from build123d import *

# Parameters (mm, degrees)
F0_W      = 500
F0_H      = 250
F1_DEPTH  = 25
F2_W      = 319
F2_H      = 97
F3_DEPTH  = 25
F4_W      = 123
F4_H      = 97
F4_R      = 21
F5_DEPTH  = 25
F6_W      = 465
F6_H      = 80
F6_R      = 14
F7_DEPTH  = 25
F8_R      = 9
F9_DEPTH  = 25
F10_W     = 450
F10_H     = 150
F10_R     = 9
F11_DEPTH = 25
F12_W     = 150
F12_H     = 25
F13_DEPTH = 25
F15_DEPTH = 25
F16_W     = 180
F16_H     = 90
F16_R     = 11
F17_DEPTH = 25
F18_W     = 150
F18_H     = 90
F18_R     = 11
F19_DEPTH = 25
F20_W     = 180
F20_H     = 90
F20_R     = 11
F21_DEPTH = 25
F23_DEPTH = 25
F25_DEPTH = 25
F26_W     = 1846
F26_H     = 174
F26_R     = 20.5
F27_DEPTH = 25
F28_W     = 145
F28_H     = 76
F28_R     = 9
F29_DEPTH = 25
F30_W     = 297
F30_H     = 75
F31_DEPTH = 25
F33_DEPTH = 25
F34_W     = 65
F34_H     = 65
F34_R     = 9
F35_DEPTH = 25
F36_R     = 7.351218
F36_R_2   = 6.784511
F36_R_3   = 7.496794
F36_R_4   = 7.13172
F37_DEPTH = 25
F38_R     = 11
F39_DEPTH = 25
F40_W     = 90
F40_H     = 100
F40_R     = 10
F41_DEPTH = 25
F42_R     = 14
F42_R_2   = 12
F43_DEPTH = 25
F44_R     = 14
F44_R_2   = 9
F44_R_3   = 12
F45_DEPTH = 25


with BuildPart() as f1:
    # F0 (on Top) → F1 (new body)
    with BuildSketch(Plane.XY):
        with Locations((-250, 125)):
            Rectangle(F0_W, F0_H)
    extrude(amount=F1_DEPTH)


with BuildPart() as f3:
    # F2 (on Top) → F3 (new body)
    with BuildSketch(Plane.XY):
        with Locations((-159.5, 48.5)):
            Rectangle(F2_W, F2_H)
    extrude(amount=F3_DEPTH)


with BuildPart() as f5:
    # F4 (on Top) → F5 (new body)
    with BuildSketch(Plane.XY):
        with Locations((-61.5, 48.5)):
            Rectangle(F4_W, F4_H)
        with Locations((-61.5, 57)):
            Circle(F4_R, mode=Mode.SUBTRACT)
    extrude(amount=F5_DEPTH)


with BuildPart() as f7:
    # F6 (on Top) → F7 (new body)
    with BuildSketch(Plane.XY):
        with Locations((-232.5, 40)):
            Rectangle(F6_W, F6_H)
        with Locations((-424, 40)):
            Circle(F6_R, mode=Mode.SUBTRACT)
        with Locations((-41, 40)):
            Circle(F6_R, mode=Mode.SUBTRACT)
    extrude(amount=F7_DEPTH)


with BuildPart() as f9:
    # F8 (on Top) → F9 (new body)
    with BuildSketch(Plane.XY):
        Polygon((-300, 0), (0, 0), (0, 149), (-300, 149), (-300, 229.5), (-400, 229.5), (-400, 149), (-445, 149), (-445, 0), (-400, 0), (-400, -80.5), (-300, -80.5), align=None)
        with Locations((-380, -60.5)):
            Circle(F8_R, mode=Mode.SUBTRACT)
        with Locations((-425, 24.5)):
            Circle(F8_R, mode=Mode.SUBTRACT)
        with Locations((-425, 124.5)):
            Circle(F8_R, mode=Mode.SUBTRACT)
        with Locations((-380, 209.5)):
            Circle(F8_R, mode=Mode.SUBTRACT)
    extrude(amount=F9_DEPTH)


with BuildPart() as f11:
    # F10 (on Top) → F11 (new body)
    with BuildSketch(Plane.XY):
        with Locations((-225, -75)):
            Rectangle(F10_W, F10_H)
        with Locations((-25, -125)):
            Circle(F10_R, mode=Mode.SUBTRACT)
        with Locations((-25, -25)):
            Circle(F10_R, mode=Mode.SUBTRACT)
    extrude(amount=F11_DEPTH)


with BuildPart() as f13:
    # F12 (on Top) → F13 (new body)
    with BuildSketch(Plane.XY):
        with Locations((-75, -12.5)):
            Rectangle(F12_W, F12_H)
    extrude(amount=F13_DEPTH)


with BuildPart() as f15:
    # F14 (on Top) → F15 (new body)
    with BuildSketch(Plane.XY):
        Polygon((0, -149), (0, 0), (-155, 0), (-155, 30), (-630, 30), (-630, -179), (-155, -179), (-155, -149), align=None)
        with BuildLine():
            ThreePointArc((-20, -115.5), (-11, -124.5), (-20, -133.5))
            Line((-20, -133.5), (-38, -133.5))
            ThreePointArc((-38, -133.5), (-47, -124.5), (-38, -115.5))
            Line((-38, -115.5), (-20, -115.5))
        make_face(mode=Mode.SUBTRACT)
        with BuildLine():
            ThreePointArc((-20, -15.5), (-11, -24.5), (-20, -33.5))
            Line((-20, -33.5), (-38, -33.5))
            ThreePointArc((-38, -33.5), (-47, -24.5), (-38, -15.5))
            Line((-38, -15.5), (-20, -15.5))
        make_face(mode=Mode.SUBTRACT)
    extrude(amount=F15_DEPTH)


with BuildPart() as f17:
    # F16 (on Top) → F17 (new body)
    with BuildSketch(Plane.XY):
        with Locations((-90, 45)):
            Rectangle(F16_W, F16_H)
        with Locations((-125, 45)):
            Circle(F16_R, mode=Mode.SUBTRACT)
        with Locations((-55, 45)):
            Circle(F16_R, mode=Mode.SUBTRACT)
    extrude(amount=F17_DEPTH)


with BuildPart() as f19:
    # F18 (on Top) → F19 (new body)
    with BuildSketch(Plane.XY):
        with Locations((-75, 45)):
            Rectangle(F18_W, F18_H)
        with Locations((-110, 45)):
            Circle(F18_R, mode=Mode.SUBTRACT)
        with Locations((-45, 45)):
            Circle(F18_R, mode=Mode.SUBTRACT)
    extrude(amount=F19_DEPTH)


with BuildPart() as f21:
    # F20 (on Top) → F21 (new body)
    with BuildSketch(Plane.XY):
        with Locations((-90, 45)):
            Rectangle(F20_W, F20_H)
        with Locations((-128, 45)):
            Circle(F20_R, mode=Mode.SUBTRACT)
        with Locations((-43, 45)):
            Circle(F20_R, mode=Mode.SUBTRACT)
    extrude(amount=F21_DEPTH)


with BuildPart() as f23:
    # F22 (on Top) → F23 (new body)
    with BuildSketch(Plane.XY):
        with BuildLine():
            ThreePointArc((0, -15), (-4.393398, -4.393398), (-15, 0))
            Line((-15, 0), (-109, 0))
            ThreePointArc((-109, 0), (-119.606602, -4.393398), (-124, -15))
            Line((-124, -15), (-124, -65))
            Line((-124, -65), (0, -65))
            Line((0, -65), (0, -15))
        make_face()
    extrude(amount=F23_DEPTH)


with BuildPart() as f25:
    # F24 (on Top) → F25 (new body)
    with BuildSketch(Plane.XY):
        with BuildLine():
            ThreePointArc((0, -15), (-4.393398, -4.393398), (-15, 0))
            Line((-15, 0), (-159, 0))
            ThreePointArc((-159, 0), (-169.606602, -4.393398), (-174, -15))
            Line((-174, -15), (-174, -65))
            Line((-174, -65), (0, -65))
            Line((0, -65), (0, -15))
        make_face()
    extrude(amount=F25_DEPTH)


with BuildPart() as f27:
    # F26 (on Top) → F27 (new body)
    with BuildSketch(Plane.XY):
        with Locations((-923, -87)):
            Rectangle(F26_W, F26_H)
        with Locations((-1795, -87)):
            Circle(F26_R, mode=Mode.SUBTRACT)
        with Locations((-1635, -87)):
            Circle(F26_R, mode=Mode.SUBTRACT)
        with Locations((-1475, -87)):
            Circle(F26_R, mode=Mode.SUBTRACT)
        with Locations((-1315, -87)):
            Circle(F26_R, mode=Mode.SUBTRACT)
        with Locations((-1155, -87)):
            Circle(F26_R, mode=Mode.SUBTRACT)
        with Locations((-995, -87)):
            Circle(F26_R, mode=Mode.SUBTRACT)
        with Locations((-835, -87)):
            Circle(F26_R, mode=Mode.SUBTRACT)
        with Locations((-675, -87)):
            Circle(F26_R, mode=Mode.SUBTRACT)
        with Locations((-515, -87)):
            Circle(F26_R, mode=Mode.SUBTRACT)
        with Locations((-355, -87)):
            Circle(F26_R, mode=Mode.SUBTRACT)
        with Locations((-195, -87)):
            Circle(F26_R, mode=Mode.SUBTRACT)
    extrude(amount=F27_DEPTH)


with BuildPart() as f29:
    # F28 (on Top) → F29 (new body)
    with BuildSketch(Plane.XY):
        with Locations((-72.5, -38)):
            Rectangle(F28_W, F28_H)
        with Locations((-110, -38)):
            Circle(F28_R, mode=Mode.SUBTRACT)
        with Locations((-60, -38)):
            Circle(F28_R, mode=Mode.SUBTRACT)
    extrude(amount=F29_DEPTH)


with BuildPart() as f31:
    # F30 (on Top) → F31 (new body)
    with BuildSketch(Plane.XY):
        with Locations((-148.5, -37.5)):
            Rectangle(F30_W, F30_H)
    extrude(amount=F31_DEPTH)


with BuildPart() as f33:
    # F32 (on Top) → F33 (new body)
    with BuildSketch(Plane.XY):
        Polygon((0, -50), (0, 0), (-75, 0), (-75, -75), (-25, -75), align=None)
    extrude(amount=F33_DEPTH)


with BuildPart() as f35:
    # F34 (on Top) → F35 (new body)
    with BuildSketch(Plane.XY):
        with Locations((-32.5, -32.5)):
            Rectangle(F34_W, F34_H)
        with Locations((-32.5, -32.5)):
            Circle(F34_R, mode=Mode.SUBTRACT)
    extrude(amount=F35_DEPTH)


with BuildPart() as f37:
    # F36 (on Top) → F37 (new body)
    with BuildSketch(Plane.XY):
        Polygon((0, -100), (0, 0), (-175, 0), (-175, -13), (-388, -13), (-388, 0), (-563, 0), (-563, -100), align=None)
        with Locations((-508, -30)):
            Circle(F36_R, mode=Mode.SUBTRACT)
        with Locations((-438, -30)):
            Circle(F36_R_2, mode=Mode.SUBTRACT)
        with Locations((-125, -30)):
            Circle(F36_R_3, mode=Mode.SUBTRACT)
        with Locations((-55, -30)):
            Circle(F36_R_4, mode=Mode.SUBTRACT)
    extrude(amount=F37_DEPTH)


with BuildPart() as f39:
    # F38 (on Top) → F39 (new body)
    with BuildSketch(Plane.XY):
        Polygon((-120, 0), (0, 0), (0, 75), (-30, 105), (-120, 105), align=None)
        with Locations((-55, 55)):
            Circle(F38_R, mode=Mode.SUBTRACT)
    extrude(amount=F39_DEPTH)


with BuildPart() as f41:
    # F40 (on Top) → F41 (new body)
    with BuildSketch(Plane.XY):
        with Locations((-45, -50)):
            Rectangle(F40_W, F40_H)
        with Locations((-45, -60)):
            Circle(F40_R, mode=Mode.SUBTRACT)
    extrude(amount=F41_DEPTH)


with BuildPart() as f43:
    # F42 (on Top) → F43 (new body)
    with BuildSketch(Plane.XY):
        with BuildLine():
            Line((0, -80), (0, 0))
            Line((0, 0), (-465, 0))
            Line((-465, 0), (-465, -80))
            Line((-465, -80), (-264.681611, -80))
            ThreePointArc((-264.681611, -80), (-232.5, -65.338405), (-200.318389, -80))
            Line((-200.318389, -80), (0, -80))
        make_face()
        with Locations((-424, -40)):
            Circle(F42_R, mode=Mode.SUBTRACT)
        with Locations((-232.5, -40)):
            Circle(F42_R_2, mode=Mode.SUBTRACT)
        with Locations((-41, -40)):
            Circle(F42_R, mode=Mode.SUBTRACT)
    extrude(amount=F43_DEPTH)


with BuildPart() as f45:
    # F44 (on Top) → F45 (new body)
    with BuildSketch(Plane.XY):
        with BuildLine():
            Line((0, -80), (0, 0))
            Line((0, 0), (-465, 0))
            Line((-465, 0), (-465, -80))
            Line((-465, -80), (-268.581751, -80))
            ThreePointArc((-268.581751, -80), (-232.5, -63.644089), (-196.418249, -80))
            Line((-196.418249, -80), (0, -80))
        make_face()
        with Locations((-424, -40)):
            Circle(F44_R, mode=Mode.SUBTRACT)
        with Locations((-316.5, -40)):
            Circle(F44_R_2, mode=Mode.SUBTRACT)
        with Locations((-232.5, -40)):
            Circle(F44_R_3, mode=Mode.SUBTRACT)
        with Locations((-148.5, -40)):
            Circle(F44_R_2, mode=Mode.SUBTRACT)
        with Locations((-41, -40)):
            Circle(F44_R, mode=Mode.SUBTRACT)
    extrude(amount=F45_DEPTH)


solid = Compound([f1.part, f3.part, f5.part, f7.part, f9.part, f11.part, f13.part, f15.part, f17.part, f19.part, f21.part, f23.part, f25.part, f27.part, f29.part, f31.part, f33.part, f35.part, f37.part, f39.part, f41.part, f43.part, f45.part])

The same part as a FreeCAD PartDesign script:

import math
import FreeCAD as App
import Part
import Sketcher


def add_polygon(sketch, points):
    """Adds a closed chain of lines whose ends are joined by coincident constraints."""
    first, n = sketch.GeometryCount, len(points)
    for a, b in zip(points, points[1:] + points[:1]):
        sketch.addGeometry(Part.LineSegment(App.Vector(*a, 0), App.Vector(*b, 0)), False)
    for i in range(n):
        sketch.addConstraint(Sketcher.Constraint("Coincident", first + i, 2, first + (i + 1) % n, 1))

doc = App.newDocument("Part")
body = doc.addObject("PartDesign::Body", "Body")

# Sketch on XY plane
sketch1 = body.newObject("Sketcher::SketchObject", "Sketch")
sketch1.AttachmentSupport = (doc.getObject("XY_Plane"), [""])
sketch1.MapMode = "FlatFace"
add_polygon(sketch1, [(-500, 250), (-500, 0), (0, 0), (0, 250)])  # lines 0-3
sketch1.addConstraint([
    Sketcher.Constraint("Vertical", 0),
    Sketcher.Constraint("Horizontal", 1),
    Sketcher.Constraint("Vertical", 2),
    Sketcher.Constraint("Horizontal", 3),
    Sketcher.Constraint("Coincident", 1, 2, -1, 1),
    Sketcher.Constraint("DistanceX", 1, 1, 1, 2, 500.0),
    Sketcher.Constraint("DistanceY", 0, 2, 0, 1, 250.0),
])
pad1 = body.newObject("PartDesign::Pad", "Pad")
pad1.Profile = sketch1
pad1.Length = 25
body2 = doc.addObject("PartDesign::Body", "Body001")

# Sketch on XY plane
sketch2 = body2.newObject("Sketcher::SketchObject", "Sketch001")
sketch2.AttachmentSupport = (doc.getObject("XY_Plane001"), [""])
sketch2.MapMode = "FlatFace"
add_polygon(sketch2, [(-319, 97), (-319, 0), (0, 0), (0, 97)])  # lines 0-3
sketch2.addConstraint([
    Sketcher.Constraint("Vertical", 0),
    Sketcher.Constraint("Horizontal", 1),
    Sketcher.Constraint("Vertical", 2),
    Sketcher.Constraint("Horizontal", 3),
    Sketcher.Constraint("Coincident", 1, 2, -1, 1),
    Sketcher.Constraint("DistanceX", 1, 1, 1, 2, 319.0),
    Sketcher.Constraint("DistanceY", 0, 2, 0, 1, 97.0),
])
pad2 = body2.newObject("PartDesign::Pad", "Pad001")
pad2.Profile = sketch2
pad2.Length = 25
body3 = doc.addObject("PartDesign::Body", "Body002")

# Sketch on XY plane
sketch3 = body3.newObject("Sketcher::SketchObject", "Sketch002")
sketch3.AttachmentSupport = (doc.getObject("XY_Plane002"), [""])
sketch3.MapMode = "FlatFace"
add_polygon(sketch3, [(-123, 97), (-123, 0), (0, 0), (0, 97)])  # lines 0-3
sketch3.addGeometry(Part.Circle(App.Vector(-62, 57, 0), App.Vector(0, 0, 1), 21), False)  # 4
sketch3.addConstraint([
    Sketcher.Constraint("Vertical", 0),
    Sketcher.Constraint("Horizontal", 1),
    Sketcher.Constraint("Vertical", 2),
    Sketcher.Constraint("Horizontal", 3),
    Sketcher.Constraint("Coincident", 1, 2, -1, 1),
    Sketcher.Constraint("Diameter", 4, 42.0),
    Sketcher.Constraint("DistanceX", 1, 1, 1, 2, 123.0),
    Sketcher.Constraint("DistanceY", 0, 2, 0, 1, 97.0),
    Sketcher.Constraint("DistanceY", -1, 1, 4, 3, 57.0),
    Sketcher.Constraint("DistanceX", 4, 3, -1, 1, 61.5),
])
pad3 = body3.newObject("PartDesign::Pad", "Pad002")
pad3.Profile = sketch3
pad3.Length = 25
body4 = doc.addObject("PartDesign::Body", "Body003")

# Sketch on XY plane
sketch4 = body4.newObject("Sketcher::SketchObject", "Sketch003")
sketch4.AttachmentSupport = (doc.getObject("XY_Plane003"), [""])
sketch4.MapMode = "FlatFace"
add_polygon(sketch4, [(-465, 80), (-465, 0), (0, 0), (0, 80)])  # lines 0-3
sketch4.addGeometry(Part.Circle(App.Vector(-424, 40, 0), App.Vector(0, 0, 1), 14), False)  # 4
sketch4.addGeometry(Part.Circle(App.Vector(-41, 40, 0), App.Vector(0, 0, 1), 14), False)  # 5
sketch4.addConstraint([
    Sketcher.Constraint("Vertical", 0),
    Sketcher.Constraint("Horizontal", 1),
    Sketcher.Constraint("Vertical", 2),
    Sketcher.Constraint("Horizontal", 3),
    Sketcher.Constraint("Coincident", 1, 2, -1, 1),
    Sketcher.Constraint("Equal", 4, 5),
    Sketcher.Constraint("Horizontal", 4, 3, 5, 3),
    Sketcher.Constraint("Diameter", 4, 28.0),
    Sketcher.Constraint("DistanceX", 1, 1, 1, 2, 465.0),
    Sketcher.Constraint("DistanceY", 0, 2, 0, 1, 80.0),
    Sketcher.Constraint("DistanceX", 4, 3, -1, 1, 424.0),
    Sketcher.Constraint("DistanceY", -1, 1, 4, 3, 40.0),
    Sketcher.Constraint("DistanceX", 5, 3, -1, 1, 41.0),
])
pad4 = body4.newObject("PartDesign::Pad", "Pad003")
pad4.Profile = sketch4
pad4.Length = 25
body5 = doc.addObject("PartDesign::Body", "Body004")

# Sketch on XY plane
sketch5 = body5.newObject("Sketcher::SketchObject", "Sketch004")
sketch5.AttachmentSupport = (doc.getObject("XY_Plane004"), [""])
sketch5.MapMode = "FlatFace"
add_polygon(sketch5, [(-300, 0), (0, 0), (0, 149), (-300, 149), (-300, 230), (-400, 230), (-400, 149), (-445, 149), (-445, 0), (-400, 0), (-400, -80), (-300, -80)])  # lines 0-11
sketch5.addGeometry(Part.Circle(App.Vector(-425, 24, 0), App.Vector(0, 0, 1), 9), False)  # 12
sketch5.addGeometry(Part.Circle(App.Vector(-380, -60, 0), App.Vector(0, 0, 1), 9), False)  # 13
sketch5.addGeometry(Part.Circle(App.Vector(-425, 124, 0), App.Vector(0, 0, 1), 9), False)  # 14
sketch5.addGeometry(Part.Circle(App.Vector(-380, 210, 0), App.Vector(0, 0, 1), 9), False)  # 15
sketch5.addConstraint([
    Sketcher.Constraint("Horizontal", 0),
    Sketcher.Constraint("Vertical", 1),
    Sketcher.Constraint("Horizontal", 2),
    Sketcher.Constraint("Vertical", 3),
    Sketcher.Constraint("Horizontal", 4),
    Sketcher.Constraint("Vertical", 5),
    Sketcher.Constraint("Horizontal", 6),
    Sketcher.Constraint("Vertical", 7),
    Sketcher.Constraint("Horizontal", 8),
    Sketcher.Constraint("Vertical", 9),
    Sketcher.Constraint("Horizontal", 10),
    Sketcher.Constraint("Vertical", 11),
    Sketcher.Constraint("Coincident", 0, 2, -1, 1),
    Sketcher.Constraint("Equal", 12, 13),
    Sketcher.Constraint("Equal", 13, 14),
    Sketcher.Constraint("Equal", 14, 15),
    Sketcher.Constraint("PointOnObject", 7, 2, -1),
    Sketcher.Constraint("Horizontal", 2, 2, 5, 2),
    Sketcher.Constraint("Vertical", 12, 3, 14, 3),
    Sketcher.Constraint("Vertical", 13, 3, 15, 3),
    Sketcher.Constraint("Vertical", 5, 2, 8, 2),
    Sketcher.Constraint("Vertical", 3, 2, 10, 2),
    Sketcher.Constraint("Equal", 5, 9),
    Sketcher.Constraint("Diameter", 12, 18.0),
    Sketcher.Constraint("DistanceX", 0, 1, 0, 2, 300.0),
    Sketcher.Constraint("DistanceX", 4, 2, 4, 1, 100.0),
    Sketcher.Constraint("DistanceX", 6, 2, 6, 1, 45.0),
    Sketcher.Constraint("DistanceY", 1, 1, 1, 2, 149.0),
    Sketcher.Constraint("DistanceY", 3, 1, 3, 2, 80.5),
    Sketcher.Constraint("DistanceX", 12, 3, -1, 1, 425.0),
    Sketcher.Constraint("DistanceX", 13, 3, -1, 1, 380.0),
    Sketcher.Constraint("DistanceY", 13, 3, 12, 3, 85.0),
    Sketcher.Constraint("DistanceY", 12, 3, 14, 3, 100.0),
    Sketcher.Constraint("DistanceY", 14, 3, 15, 3, 85.0),
    Sketcher.Constraint("DistanceY", 15, 3, 3, 2, 20.0),
])
pad5 = body5.newObject("PartDesign::Pad", "Pad004")
pad5.Profile = sketch5
pad5.Length = 25
body6 = doc.addObject("PartDesign::Body", "Body005")

# Sketch on XY plane
sketch6 = body6.newObject("Sketcher::SketchObject", "Sketch005")
sketch6.AttachmentSupport = (doc.getObject("XY_Plane005"), [""])
sketch6.MapMode = "FlatFace"
add_polygon(sketch6, [(-450, 0), (-450, -150), (0, -150), (0, 0)])  # lines 0-3
sketch6.addGeometry(Part.Circle(App.Vector(-25, -125, 0), App.Vector(0, 0, 1), 9), False)  # 4
sketch6.addGeometry(Part.Circle(App.Vector(-25, -25, 0), App.Vector(0, 0, 1), 9), False)  # 5
sketch6.addConstraint([
    Sketcher.Constraint("Vertical", 0),
    Sketcher.Constraint("Horizontal", 1),
    Sketcher.Constraint("Vertical", 2),
    Sketcher.Constraint("Horizontal", 3),
    Sketcher.Constraint("Coincident", 2, 2, -1, 1),
    Sketcher.Constraint("Equal", 4, 5),
    Sketcher.Constraint("Vertical", 4, 3, 5, 3),
    Sketcher.Constraint("Diameter", 4, 18.0),
    Sketcher.Constraint("DistanceX", 1, 1, 1, 2, 450.0),
    Sketcher.Constraint("DistanceY", 0, 2, 0, 1, 150.0),
    Sketcher.Constraint("DistanceX", 4, 3, -1, 1, 25.0),
    Sketcher.Constraint("DistanceY", 4, 3, -1, 1, 125.0),
    Sketcher.Constraint("DistanceY", 5, 3, -1, 1, 25.0),
])
pad6 = body6.newObject("PartDesign::Pad", "Pad005")
pad6.Profile = sketch6
pad6.Length = 25
body7 = doc.addObject("PartDesign::Body", "Body006")

# Sketch on XY plane
sketch7 = body7.newObject("Sketcher::SketchObject", "Sketch006")
sketch7.AttachmentSupport = (doc.getObject("XY_Plane006"), [""])
sketch7.MapMode = "FlatFace"
add_polygon(sketch7, [(-150, 0), (-150, -25), (0, -25), (0, 0)])  # lines 0-3
sketch7.addConstraint([
    Sketcher.Constraint("Vertical", 0),
    Sketcher.Constraint("Horizontal", 1),
    Sketcher.Constraint("Vertical", 2),
    Sketcher.Constraint("Horizontal", 3),
    Sketcher.Constraint("Coincident", 2, 2, -1, 1),
    Sketcher.Constraint("DistanceX", 1, 1, 1, 2, 150.0),
    Sketcher.Constraint("DistanceY", 0, 2, 0, 1, 25.0),
])
pad7 = body7.newObject("PartDesign::Pad", "Pad006")
pad7.Profile = sketch7
pad7.Length = 25
body8 = doc.addObject("PartDesign::Body", "Body007")

# Sketch on XY plane
sketch8 = body8.newObject("Sketcher::SketchObject", "Sketch007")
sketch8.AttachmentSupport = (doc.getObject("XY_Plane007"), [""])
sketch8.MapMode = "FlatFace"
add_polygon(sketch8, [(0, -149), (0, 0), (-155, 0), (-155, 30), (-630, 30), (-630, -179), (-155, -179), (-155, -149)])  # lines 0-7
sketch8.addGeometry(Part.LineSegment(App.Vector(-38, -116, 0), App.Vector(-20, -116, 0)), False)  # 8
sketch8.addGeometry(Part.ArcOfCircle(Part.Circle(App.Vector(-20, -124, 0), App.Vector(0, 0, 1), 9), math.radians(-90), math.radians(90)), False)  # 9
sketch8.addGeometry(Part.LineSegment(App.Vector(-20, -134, 0), App.Vector(-38, -134, 0)), False)  # 10
sketch8.addGeometry(Part.ArcOfCircle(Part.Circle(App.Vector(-38, -124, 0), App.Vector(0, 0, 1), 9), math.radians(90), math.radians(270)), False)  # 11
sketch8.addGeometry(Part.LineSegment(App.Vector(-38, -16, 0), App.Vector(-20, -16, 0)), False)  # 12
sketch8.addGeometry(Part.ArcOfCircle(Part.Circle(App.Vector(-20, -24, 0), App.Vector(0, 0, 1), 9), math.radians(-90), math.radians(90)), False)  # 13
sketch8.addGeometry(Part.LineSegment(App.Vector(-20, -34, 0), App.Vector(-38, -34, 0)), False)  # 14
sketch8.addGeometry(Part.ArcOfCircle(Part.Circle(App.Vector(-38, -24, 0), App.Vector(0, 0, 1), 9), math.radians(90), math.radians(270)), False)  # 15
sketch8.addConstraint([
    Sketcher.Constraint("Tangent", 8, 2, 9, 2),
    Sketcher.Constraint("Tangent", 9, 1, 10, 1),
    Sketcher.Constraint("Tangent", 10, 2, 11, 2),
    Sketcher.Constraint("Tangent", 11, 1, 8, 1),
    Sketcher.Constraint("Tangent", 12, 2, 13, 2),
    Sketcher.Constraint("Tangent", 13, 1, 14, 1),
    Sketcher.Constraint("Tangent", 14, 2, 15, 2),
    Sketcher.Constraint("Tangent", 15, 1, 12, 1),
    Sketcher.Constraint("Vertical", 0),
    Sketcher.Constraint("Horizontal", 1),
    Sketcher.Constraint("Vertical", 2),
    Sketcher.Constraint("Horizontal", 3),
    Sketcher.Constraint("Vertical", 4),
    Sketcher.Constraint("Horizontal", 5),
    Sketcher.Constraint("Vertical", 6),
    Sketcher.Constraint("Horizontal", 7),
    Sketcher.Constraint("Horizontal", 8),
    Sketcher.Constraint("Horizontal", 10),
    Sketcher.Constraint("Horizontal", 12),
    Sketcher.Constraint("Horizontal", 14),
    Sketcher.Constraint("Coincident", 0, 2, -1, 1),
    Sketcher.Constraint("Equal", 11, 13),
    Sketcher.Constraint("Vertical", 9, 3, 13, 3),
    Sketcher.Constraint("Vertical", 11, 3, 15, 3),
    Sketcher.Constraint("Vertical", 2, 2, 5, 2),
    Sketcher.Constraint("Equal", 2, 6),
    Sketcher.Constraint("Radius", 9, 9.0),
    Sketcher.Constraint("DistanceX", 1, 2, 1, 1, 155.0),
    Sketcher.Constraint("DistanceX", 3, 2, 3, 1, 475.0),
    Sketcher.Constraint("DistanceX", 8, 1, 8, 2, 18.0),
    Sketcher.Constraint("DistanceY", 0, 1, 0, 2, 149.0),
    Sketcher.Constraint("DistanceY", 2, 1, 2, 2, 30.0),
    Sketcher.Constraint("DistanceX", 9, 3, -1, 1, 20.0),
    Sketcher.Constraint("DistanceY", 9, 3, 13, 3, 100.0),
    Sketcher.Constraint("DistanceY", 9, 3, -1, 1, 124.5),
])
pad8 = body8.newObject("PartDesign::Pad", "Pad007")
pad8.Profile = sketch8
pad8.Length = 25
body9 = doc.addObject("PartDesign::Body", "Body008")

# Sketch on XY plane
sketch9 = body9.newObject("Sketcher::SketchObject", "Sketch008")
sketch9.AttachmentSupport = (doc.getObject("XY_Plane008"), [""])
sketch9.MapMode = "FlatFace"
add_polygon(sketch9, [(-180, 90), (-180, 0), (0, 0), (0, 90)])  # lines 0-3
sketch9.addGeometry(Part.Circle(App.Vector(-125, 45, 0), App.Vector(0, 0, 1), 11), False)  # 4
sketch9.addGeometry(Part.Circle(App.Vector(-55, 45, 0), App.Vector(0, 0, 1), 11), False)  # 5
sketch9.addConstraint([
    Sketcher.Constraint("Vertical", 0),
    Sketcher.Constraint("Horizontal", 1),
    Sketcher.Constraint("Vertical", 2),
    Sketcher.Constraint("Horizontal", 3),
    Sketcher.Constraint("Coincident", 1, 2, -1, 1),
    Sketcher.Constraint("Equal", 4, 5),
    Sketcher.Constraint("Horizontal", 4, 3, 5, 3),
    Sketcher.Constraint("Diameter", 4, 22.0),
    Sketcher.Constraint("DistanceX", 1, 1, 1, 2, 180.0),
    Sketcher.Constraint("DistanceY", 0, 2, 0, 1, 90.0),
    Sketcher.Constraint("DistanceX", 4, 3, -1, 1, 125.0),
    Sketcher.Constraint("DistanceY", -1, 1, 4, 3, 45.0),
    Sketcher.Constraint("DistanceX", 5, 3, -1, 1, 55.0),
])
pad9 = body9.newObject("PartDesign::Pad", "Pad008")
pad9.Profile = sketch9
pad9.Length = 25
body10 = doc.addObject("PartDesign::Body", "Body009")

# Sketch on XY plane
sketch10 = body10.newObject("Sketcher::SketchObject", "Sketch009")
sketch10.AttachmentSupport = (doc.getObject("XY_Plane009"), [""])
sketch10.MapMode = "FlatFace"
add_polygon(sketch10, [(-150, 90), (-150, 0), (0, 0), (0, 90)])  # lines 0-3
sketch10.addGeometry(Part.Circle(App.Vector(-110, 45, 0), App.Vector(0, 0, 1), 11), False)  # 4
sketch10.addGeometry(Part.Circle(App.Vector(-45, 45, 0), App.Vector(0, 0, 1), 11), False)  # 5
sketch10.addConstraint([
    Sketcher.Constraint("Vertical", 0),
    Sketcher.Constraint("Horizontal", 1),
    Sketcher.Constraint("Vertical", 2),
    Sketcher.Constraint("Horizontal", 3),
    Sketcher.Constraint("Coincident", 1, 2, -1, 1),
    Sketcher.Constraint("Equal", 4, 5),
    Sketcher.Constraint("Horizontal", 4, 3, 5, 3),
    Sketcher.Constraint("Diameter", 4, 22.0),
    Sketcher.Constraint("DistanceX", 1, 1, 1, 2, 150.0),
    Sketcher.Constraint("DistanceY", 0, 2, 0, 1, 90.0),
    Sketcher.Constraint("DistanceX", 4, 3, -1, 1, 110.0),
    Sketcher.Constraint("DistanceY", -1, 1, 4, 3, 45.0),
    Sketcher.Constraint("DistanceX", 5, 3, -1, 1, 45.0),
])
pad10 = body10.newObject("PartDesign::Pad", "Pad009")
pad10.Profile = sketch10
pad10.Length = 25
body11 = doc.addObject("PartDesign::Body", "Body010")

# Sketch on XY plane
sketch11 = body11.newObject("Sketcher::SketchObject", "Sketch010")
sketch11.AttachmentSupport = (doc.getObject("XY_Plane010"), [""])
sketch11.MapMode = "FlatFace"
add_polygon(sketch11, [(-180, 90), (-180, 0), (0, 0), (0, 90)])  # lines 0-3
sketch11.addGeometry(Part.Circle(App.Vector(-128, 45, 0), App.Vector(0, 0, 1), 11), False)  # 4
sketch11.addGeometry(Part.Circle(App.Vector(-43, 45, 0), App.Vector(0, 0, 1), 11), False)  # 5
sketch11.addConstraint([
    Sketcher.Constraint("Vertical", 0),
    Sketcher.Constraint("Horizontal", 1),
    Sketcher.Constraint("Vertical", 2),
    Sketcher.Constraint("Horizontal", 3),
    Sketcher.Constraint("Coincident", 1, 2, -1, 1),
    Sketcher.Constraint("Equal", 4, 5),
    Sketcher.Constraint("Horizontal", 4, 3, 5, 3),
    Sketcher.Constraint("Diameter", 4, 22.0),
    Sketcher.Constraint("DistanceX", 1, 1, 1, 2, 180.0),
    Sketcher.Constraint("DistanceY", 0, 2, 0, 1, 90.0),
    Sketcher.Constraint("DistanceX", 4, 3, -1, 1, 128.0),
    Sketcher.Constraint("DistanceY", -1, 1, 4, 3, 45.0),
    Sketcher.Constraint("DistanceX", 5, 3, -1, 1, 43.0),
])
pad11 = body11.newObject("PartDesign::Pad", "Pad010")
pad11.Profile = sketch11
pad11.Length = 25
body12 = doc.addObject("PartDesign::Body", "Body011")

# Sketch on XY plane
sketch12 = body12.newObject("Sketcher::SketchObject", "Sketch011")
sketch12.AttachmentSupport = (doc.getObject("XY_Plane011"), [""])
sketch12.MapMode = "FlatFace"
sketch12.addGeometry([
    Part.ArcOfCircle(Part.Circle(App.Vector(-15, -15, 0), App.Vector(0, 0, 1), 15), math.radians(0), math.radians(90)),  # 0
    Part.LineSegment(App.Vector(-15, 0, 0), App.Vector(-109, 0, 0)),  # 1
    Part.ArcOfCircle(Part.Circle(App.Vector(-109, -15, 0), App.Vector(0, 0, 1), 15), math.radians(90), math.radians(180)),  # 2
    Part.LineSegment(App.Vector(-124, -15, 0), App.Vector(-124, -65, 0)),  # 3
    Part.LineSegment(App.Vector(-124, -65, 0), App.Vector(0, -65, 0)),  # 4
    Part.LineSegment(App.Vector(0, -65, 0), App.Vector(0, -15, 0)),  # 5
], False)
sketch12.addConstraint([
    Sketcher.Constraint("Tangent", 0, 2, 1, 1),
    Sketcher.Constraint("Tangent", 1, 2, 2, 1),
    Sketcher.Constraint("Tangent", 2, 2, 3, 1),
    Sketcher.Constraint("Coincident", 3, 2, 4, 1),
    Sketcher.Constraint("Coincident", 4, 2, 5, 1),
    Sketcher.Constraint("Tangent", 5, 2, 0, 1),
    Sketcher.Constraint("Horizontal", 1),
    Sketcher.Constraint("Vertical", 3),
    Sketcher.Constraint("Horizontal", 4),
    Sketcher.Constraint("Vertical", 5),
    Sketcher.Constraint("Equal", 0, 2),
    Sketcher.Constraint("PointOnObject", 0, 2, -1),
    Sketcher.Constraint("PointOnObject", 4, 2, -2),
    Sketcher.Constraint("Radius", 0, 14.999999),
    Sketcher.Constraint("DistanceX", 1, 2, 1, 1, 94.0),
    Sketcher.Constraint("DistanceY", 3, 2, 3, 1, 50.0),
])
pad12 = body12.newObject("PartDesign::Pad", "Pad011")
pad12.Profile = sketch12
pad12.Length = 25
body13 = doc.addObject("PartDesign::Body", "Body012")

# Sketch on XY plane
sketch13 = body13.newObject("Sketcher::SketchObject", "Sketch012")
sketch13.AttachmentSupport = (doc.getObject("XY_Plane012"), [""])
sketch13.MapMode = "FlatFace"
sketch13.addGeometry([
    Part.ArcOfCircle(Part.Circle(App.Vector(-15, -15, 0), App.Vector(0, 0, 1), 15), math.radians(0), math.radians(90)),  # 0
    Part.LineSegment(App.Vector(-15, 0, 0), App.Vector(-159, 0, 0)),  # 1
    Part.ArcOfCircle(Part.Circle(App.Vector(-159, -15, 0), App.Vector(0, 0, 1), 15), math.radians(90), math.radians(180)),  # 2
    Part.LineSegment(App.Vector(-174, -15, 0), App.Vector(-174, -65, 0)),  # 3
    Part.LineSegment(App.Vector(-174, -65, 0), App.Vector(0, -65, 0)),  # 4
    Part.LineSegment(App.Vector(0, -65, 0), App.Vector(0, -15, 0)),  # 5
], False)
sketch13.addConstraint([
    Sketcher.Constraint("Tangent", 0, 2, 1, 1),
    Sketcher.Constraint("Tangent", 1, 2, 2, 1),
    Sketcher.Constraint("Tangent", 2, 2, 3, 1),
    Sketcher.Constraint("Coincident", 3, 2, 4, 1),
    Sketcher.Constraint("Coincident", 4, 2, 5, 1),
    Sketcher.Constraint("Tangent", 5, 2, 0, 1),
    Sketcher.Constraint("Horizontal", 1),
    Sketcher.Constraint("Vertical", 3),
    Sketcher.Constraint("Horizontal", 4),
    Sketcher.Constraint("Vertical", 5),
    Sketcher.Constraint("Equal", 0, 2),
    Sketcher.Constraint("PointOnObject", 0, 2, -1),
    Sketcher.Constraint("PointOnObject", 4, 2, -2),
    Sketcher.Constraint("Radius", 0, 14.999999),
    Sketcher.Constraint("DistanceX", 1, 2, 1, 1, 144.0),
    Sketcher.Constraint("DistanceY", 3, 2, 3, 1, 50.0),
])
pad13 = body13.newObject("PartDesign::Pad", "Pad012")
pad13.Profile = sketch13
pad13.Length = 25
body14 = doc.addObject("PartDesign::Body", "Body013")

# Sketch on XY plane
sketch14 = body14.newObject("Sketcher::SketchObject", "Sketch013")
sketch14.AttachmentSupport = (doc.getObject("XY_Plane013"), [""])
sketch14.MapMode = "FlatFace"
add_polygon(sketch14, [(-1846, 0), (-1846, -174), (0, -174), (0, 0)])  # lines 0-3
sketch14.addGeometry(Part.Circle(App.Vector(-1795, -87, 0), App.Vector(0, 0, 1), 20), False)  # 4
sketch14.addGeometry(Part.Circle(App.Vector(-1635, -87, 0), App.Vector(0, 0, 1), 20), False)  # 5
sketch14.addGeometry(Part.Circle(App.Vector(-1475, -87, 0), App.Vector(0, 0, 1), 20), False)  # 6
sketch14.addGeometry(Part.Circle(App.Vector(-1315, -87, 0), App.Vector(0, 0, 1), 20), False)  # 7
sketch14.addGeometry(Part.Circle(App.Vector(-1155, -87, 0), App.Vector(0, 0, 1), 20), False)  # 8
sketch14.addGeometry(Part.Circle(App.Vector(-995, -87, 0), App.Vector(0, 0, 1), 20), False)  # 9
sketch14.addGeometry(Part.Circle(App.Vector(-835, -87, 0), App.Vector(0, 0, 1), 20), False)  # 10
sketch14.addGeometry(Part.Circle(App.Vector(-675, -87, 0), App.Vector(0, 0, 1), 20), False)  # 11
sketch14.addGeometry(Part.Circle(App.Vector(-515, -87, 0), App.Vector(0, 0, 1), 20), False)  # 12
sketch14.addGeometry(Part.Circle(App.Vector(-355, -87, 0), App.Vector(0, 0, 1), 20), False)  # 13
sketch14.addGeometry(Part.Circle(App.Vector(-195, -87, 0), App.Vector(0, 0, 1), 20), False)  # 14
sketch14.addConstraint([
    Sketcher.Constraint("Vertical", 0),
    Sketcher.Constraint("Horizontal", 1),
    Sketcher.Constraint("Vertical", 2),
    Sketcher.Constraint("Horizontal", 3),
    Sketcher.Constraint("Coincident", 2, 2, -1, 1),
    Sketcher.Constraint("Equal", 4, 5),
    Sketcher.Constraint("Equal", 5, 6),
    Sketcher.Constraint("Equal", 6, 7),
    Sketcher.Constraint("Equal", 7, 8),
    Sketcher.Constraint("Equal", 8, 9),
    Sketcher.Constraint("Equal", 9, 10),
    Sketcher.Constraint("Equal", 10, 11),
    Sketcher.Constraint("Equal", 11, 12),
    Sketcher.Constraint("Equal", 12, 13),
    Sketcher.Constraint("Equal", 13, 14),
    Sketcher.Constraint("Horizontal", 4, 3, 5, 3),
    Sketcher.Constraint("Horizontal", 5, 3, 6, 3),
    Sketcher.Constraint("Horizontal", 6, 3, 7, 3),
    Sketcher.Constraint("Horizontal", 7, 3, 8, 3),
    Sketcher.Constraint("Horizontal", 8, 3, 9, 3),
    Sketcher.Constraint("Horizontal", 9, 3, 10, 3),
    Sketcher.Constraint("Horizontal", 10, 3, 11, 3),
    Sketcher.Constraint("Horizontal", 11, 3, 12, 3),
    Sketcher.Constraint("Horizontal", 12, 3, 13, 3),
    Sketcher.Constraint("Horizontal", 13, 3, 14, 3),
    Sketcher.Constraint("Diameter", 4, 41.0),
    Sketcher.Constraint("DistanceX", 1, 1, 1, 2, 1846.0),
    Sketcher.Constraint("DistanceY", 0, 2, 0, 1, 174.0),
    Sketcher.Constraint("DistanceX", 4, 3, -1, 1, 1795.0),
    Sketcher.Constraint("DistanceY", 4, 3, -1, 1, 87.0),
    Sketcher.Constraint("DistanceX", 5, 3, -1, 1, 1635.0),
    Sketcher.Constraint("DistanceX", 6, 3, -1, 1, 1475.0),
    Sketcher.Constraint("DistanceX", 7, 3, -1, 1, 1315.0),
    Sketcher.Constraint("DistanceX", 8, 3, -1, 1, 1155.0),
    Sketcher.Constraint("DistanceX", 9, 3, -1, 1, 995.0),
    Sketcher.Constraint("DistanceX", 10, 3, -1, 1, 835.0),
    Sketcher.Constraint("DistanceX", 11, 3, -1, 1, 675.0),
    Sketcher.Constraint("DistanceX", 12, 3, -1, 1, 515.0),
    Sketcher.Constraint("DistanceX", 13, 3, -1, 1, 355.0),
    Sketcher.Constraint("DistanceX", 14, 3, -1, 1, 195.0),
])
pad14 = body14.newObject("PartDesign::Pad", "Pad013")
pad14.Profile = sketch14
pad14.Length = 25
body15 = doc.addObject("PartDesign::Body", "Body014")

# Sketch on XY plane
sketch15 = body15.newObject("Sketcher::SketchObject", "Sketch014")
sketch15.AttachmentSupport = (doc.getObject("XY_Plane014"), [""])
sketch15.MapMode = "FlatFace"
add_polygon(sketch15, [(-145, 0), (-145, -76), (0, -76), (0, 0)])  # lines 0-3
sketch15.addGeometry(Part.Circle(App.Vector(-110, -38, 0), App.Vector(0, 0, 1), 9), False)  # 4
sketch15.addGeometry(Part.Circle(App.Vector(-60, -38, 0), App.Vector(0, 0, 1), 9), False)  # 5
sketch15.addConstraint([
    Sketcher.Constraint("Vertical", 0),
    Sketcher.Constraint("Horizontal", 1),
    Sketcher.Constraint("Vertical", 2),
    Sketcher.Constraint("Horizontal", 3),
    Sketcher.Constraint("Coincident", 2, 2, -1, 1),
    Sketcher.Constraint("Equal", 4, 5),
    Sketcher.Constraint("Horizontal", 4, 3, 5, 3),
    Sketcher.Constraint("Diameter", 4, 18.0),
    Sketcher.Constraint("DistanceX", 1, 1, 1, 2, 145.0),
    Sketcher.Constraint("DistanceY", 0, 2, 0, 1, 76.0),
    Sketcher.Constraint("DistanceX", 4, 3, -1, 1, 110.0),
    Sketcher.Constraint("DistanceY", 4, 3, -1, 1, 38.0),
    Sketcher.Constraint("DistanceX", 5, 3, -1, 1, 60.0),
])
pad15 = body15.newObject("PartDesign::Pad", "Pad014")
pad15.Profile = sketch15
pad15.Length = 25
body16 = doc.addObject("PartDesign::Body", "Body015")

# Sketch on XY plane
sketch16 = body16.newObject("Sketcher::SketchObject", "Sketch015")
sketch16.AttachmentSupport = (doc.getObject("XY_Plane015"), [""])
sketch16.MapMode = "FlatFace"
add_polygon(sketch16, [(-297, 0), (-297, -75), (0, -75), (0, 0)])  # lines 0-3
sketch16.addConstraint([
    Sketcher.Constraint("Vertical", 0),
    Sketcher.Constraint("Horizontal", 1),
    Sketcher.Constraint("Vertical", 2),
    Sketcher.Constraint("Horizontal", 3),
    Sketcher.Constraint("Coincident", 2, 2, -1, 1),
    Sketcher.Constraint("DistanceX", 1, 1, 1, 2, 297.0),
    Sketcher.Constraint("DistanceY", 0, 2, 0, 1, 75.0),
])
pad16 = body16.newObject("PartDesign::Pad", "Pad015")
pad16.Profile = sketch16
pad16.Length = 25
body17 = doc.addObject("PartDesign::Body", "Body016")

# Sketch on XY plane
sketch17 = body17.newObject("Sketcher::SketchObject", "Sketch016")
sketch17.AttachmentSupport = (doc.getObject("XY_Plane016"), [""])
sketch17.MapMode = "FlatFace"
add_polygon(sketch17, [(0, -50), (0, 0), (-75, 0), (-75, -75), (-25, -75)])  # lines 0-4
sketch17.addConstraint([
    Sketcher.Constraint("Vertical", 0),
    Sketcher.Constraint("Horizontal", 1),
    Sketcher.Constraint("Vertical", 2),
    Sketcher.Constraint("Horizontal", 3),
    Sketcher.Constraint("Coincident", 0, 2, -1, 1),
    Sketcher.Constraint("Equal", 3, 0),
    Sketcher.Constraint("Equal", 1, 2),
    Sketcher.Constraint("DistanceX", 1, 2, 1, 1, 75.0),
    Sketcher.Constraint("DistanceX", 3, 1, 3, 2, 50.0),
])
pad17 = body17.newObject("PartDesign::Pad", "Pad016")
pad17.Profile = sketch17
pad17.Length = 25
body18 = doc.addObject("PartDesign::Body", "Body017")

# Sketch on XY plane
sketch18 = body18.newObject("Sketcher::SketchObject", "Sketch017")
sketch18.AttachmentSupport = (doc.getObject("XY_Plane017"), [""])
sketch18.MapMode = "FlatFace"
add_polygon(sketch18, [(-65, 0), (-65, -65), (0, -65), (0, 0)])  # lines 0-3
sketch18.addGeometry(Part.Circle(App.Vector(-32, -32, 0), App.Vector(0, 0, 1), 9), False)  # 4
sketch18.addConstraint([
    Sketcher.Constraint("Vertical", 0),
    Sketcher.Constraint("Horizontal", 1),
    Sketcher.Constraint("Vertical", 2),
    Sketcher.Constraint("Horizontal", 3),
    Sketcher.Constraint("Coincident", 2, 2, -1, 1),
    Sketcher.Constraint("Equal", 3, 0),
    Sketcher.Constraint("Diameter", 4, 18.0),
    Sketcher.Constraint("DistanceX", 1, 1, 1, 2, 65.0),
    Sketcher.Constraint("DistanceX", 4, 3, -1, 1, 32.5),
    Sketcher.Constraint("DistanceY", 4, 3, -1, 1, 32.5),
])
pad18 = body18.newObject("PartDesign::Pad", "Pad017")
pad18.Profile = sketch18
pad18.Length = 25
body19 = doc.addObject("PartDesign::Body", "Body018")

# Sketch on XY plane
sketch19 = body19.newObject("Sketcher::SketchObject", "Sketch018")
sketch19.AttachmentSupport = (doc.getObject("XY_Plane018"), [""])
sketch19.MapMode = "FlatFace"
add_polygon(sketch19, [(0, -100), (0, 0), (-175, 0), (-175, -13), (-388, -13), (-388, 0), (-563, 0), (-563, -100)])  # lines 0-7
sketch19.addGeometry(Part.Circle(App.Vector(-508, -30, 0), App.Vector(0, 0, 1), 7), False)  # 8
sketch19.addGeometry(Part.Circle(App.Vector(-438, -30, 0), App.Vector(0, 0, 1), 7), False)  # 9
sketch19.addGeometry(Part.Circle(App.Vector(-125, -30, 0), App.Vector(0, 0, 1), 7), False)  # 10
sketch19.addGeometry(Part.Circle(App.Vector(-55, -30, 0), App.Vector(0, 0, 1), 7), False)  # 11
sketch19.addConstraint([
    Sketcher.Constraint("Vertical", 0),
    Sketcher.Constraint("Horizontal", 1),
    Sketcher.Constraint("Vertical", 2),
    Sketcher.Constraint("Horizontal", 3),
    Sketcher.Constraint("Vertical", 4),
    Sketcher.Constraint("Horizontal", 5),
    Sketcher.Constraint("Vertical", 6),
    Sketcher.Constraint("Horizontal", 7),
    Sketcher.Constraint("Coincident", 0, 2, -1, 1),
    Sketcher.Constraint("PointOnObject", 4, 2, -1),
    Sketcher.Constraint("Horizontal", 8, 3, 9, 3),
    Sketcher.Constraint("Horizontal", 9, 3, 10, 3),
    Sketcher.Constraint("Horizontal", 10, 3, 11, 3),
    Sketcher.Constraint("Equal", 1, 5),
    Sketcher.Constraint("DistanceX", 1, 2, 1, 1, 175.0),
    Sketcher.Constraint("DistanceX", 3, 2, 3, 1, 213.0),
    Sketcher.Constraint("DistanceY", 0, 1, 0, 2, 100.0),
    Sketcher.Constraint("DistanceY", 2, 2, 2, 1, 13.0),
    Sketcher.Constraint("DistanceX", 8, 3, -1, 1, 508.0),
    Sketcher.Constraint("DistanceY", 8, 3, -1, 1, 30.0),
    Sketcher.Constraint("DistanceX", 9, 3, -1, 1, 438.0),
    Sketcher.Constraint("DistanceX", 10, 3, -1, 1, 125.0),
    Sketcher.Constraint("DistanceX", 11, 3, -1, 1, 55.0),
    Sketcher.Constraint("Diameter", 10, 14.993588),
    Sketcher.Constraint("Diameter", 11, 14.26344),
    Sketcher.Constraint("Diameter", 8, 14.702436),
    Sketcher.Constraint("Diameter", 9, 13.569022),
])
pad19 = body19.newObject("PartDesign::Pad", "Pad018")
pad19.Profile = sketch19
pad19.Length = 25
body20 = doc.addObject("PartDesign::Body", "Body019")

# Sketch on XY plane
sketch20 = body20.newObject("Sketcher::SketchObject", "Sketch019")
sketch20.AttachmentSupport = (doc.getObject("XY_Plane019"), [""])
sketch20.MapMode = "FlatFace"
add_polygon(sketch20, [(-120, 0), (0, 0), (0, 75), (-30, 105), (-120, 105)])  # lines 0-4
sketch20.addGeometry(Part.Circle(App.Vector(-55, 55, 0), App.Vector(0, 0, 1), 11), False)  # 5
sketch20.addConstraint([
    Sketcher.Constraint("Horizontal", 0),
    Sketcher.Constraint("Vertical", 1),
    Sketcher.Constraint("Horizontal", 3),
    Sketcher.Constraint("Vertical", 4),
    Sketcher.Constraint("Coincident", 0, 2, -1, 1),
    Sketcher.Constraint("Diameter", 5, 22.0),
    Sketcher.Constraint("DistanceX", 0, 1, 0, 2, 120.0),
    Sketcher.Constraint("DistanceX", 3, 2, 3, 1, 90.0),
    Sketcher.Constraint("DistanceY", 1, 1, 1, 2, 75.0),
    Sketcher.Constraint("DistanceY", 4, 2, 4, 1, 105.0),
    Sketcher.Constraint("DistanceX", 5, 3, -1, 1, 55.0),
    Sketcher.Constraint("DistanceY", -1, 1, 5, 3, 55.0),
])
pad20 = body20.newObject("PartDesign::Pad", "Pad019")
pad20.Profile = sketch20
pad20.Length = 25
body21 = doc.addObject("PartDesign::Body", "Body020")

# Sketch on XY plane
sketch21 = body21.newObject("Sketcher::SketchObject", "Sketch020")
sketch21.AttachmentSupport = (doc.getObject("XY_Plane020"), [""])
sketch21.MapMode = "FlatFace"
add_polygon(sketch21, [(-90, 0), (-90, -100), (0, -100), (0, 0)])  # lines 0-3
sketch21.addGeometry(Part.Circle(App.Vector(-45, -60, 0), App.Vector(0, 0, 1), 10), False)  # 4
sketch21.addConstraint([
    Sketcher.Constraint("Vertical", 0),
    Sketcher.Constraint("Horizontal", 1),
    Sketcher.Constraint("Vertical", 2),
    Sketcher.Constraint("Horizontal", 3),
    Sketcher.Constraint("Coincident", 2, 2, -1, 1),
    Sketcher.Constraint("Diameter", 4, 20.0),
    Sketcher.Constraint("DistanceX", 1, 1, 1, 2, 90.0),
    Sketcher.Constraint("DistanceY", 0, 2, 0, 1, 100.0),
    Sketcher.Constraint("DistanceX", 4, 3, -1, 1, 45.0),
    Sketcher.Constraint("DistanceY", 4, 3, -1, 1, 60.0),
])
pad21 = body21.newObject("PartDesign::Pad", "Pad020")
pad21.Profile = sketch21
pad21.Length = 25
body22 = doc.addObject("PartDesign::Body", "Body021")

# Sketch on XY plane
sketch22 = body22.newObject("Sketcher::SketchObject", "Sketch021")
sketch22.AttachmentSupport = (doc.getObject("XY_Plane021"), [""])
sketch22.MapMode = "FlatFace"
sketch22.addGeometry([
    Part.LineSegment(App.Vector(0, -80, 0), App.Vector(0, 0, 0)),  # 0
    Part.LineSegment(App.Vector(0, 0, 0), App.Vector(-465, 0, 0)),  # 1
    Part.LineSegment(App.Vector(-465, 0, 0), App.Vector(-465, -80, 0)),  # 2
    Part.LineSegment(App.Vector(-465, -80, 0), App.Vector(-265, -80, 0)),  # 3
    Part.ArcOfCircle(Part.Circle(App.Vector(-232, -108, 0), App.Vector(0, 0, 1), 43), math.radians(41), math.radians(139)),  # 4
    Part.LineSegment(App.Vector(-200, -80, 0), App.Vector(0, -80, 0)),  # 5
    Part.Circle(App.Vector(-424, -40, 0), App.Vector(0, 0, 1), 14),  # 6
    Part.Circle(App.Vector(-232, -40, 0), App.Vector(0, 0, 1), 12),  # 7
    Part.Circle(App.Vector(-41, -40, 0), App.Vector(0, 0, 1), 14),  # 8
], False)
sketch22.addConstraint([
    Sketcher.Constraint("Coincident", 0, 2, 1, 1),
    Sketcher.Constraint("Coincident", 1, 2, 2, 1),
    Sketcher.Constraint("Coincident", 2, 2, 3, 1),
    Sketcher.Constraint("Coincident", 3, 2, 4, 2),
    Sketcher.Constraint("Coincident", 4, 1, 5, 1),
    Sketcher.Constraint("Coincident", 5, 2, 0, 1),
    Sketcher.Constraint("Vertical", 0),
    Sketcher.Constraint("Horizontal", 1),
    Sketcher.Constraint("Vertical", 2),
    Sketcher.Constraint("Horizontal", 3),
    Sketcher.Constraint("Horizontal", 5),
    Sketcher.Constraint("Coincident", 0, 2, -1, 1),
    Sketcher.Constraint("Equal", 6, 8),
    Sketcher.Constraint("Horizontal", 6, 3, 7, 3),
    Sketcher.Constraint("Horizontal", 7, 3, 8, 3),
    Sketcher.Constraint("Horizontal", 3, 2, 4, 1),
    Sketcher.Constraint("Vertical", 4, 3, 7, 3),
    Sketcher.Constraint("Equal", 3, 5),
    Sketcher.Constraint("Diameter", 6, 28.0),
    Sketcher.Constraint("Diameter", 7, 24.0),
    Sketcher.Constraint("DistanceX", 1, 2, 1, 1, 465.0),
    Sketcher.Constraint("DistanceY", 0, 1, 0, 2, 80.0),
    Sketcher.Constraint("DistanceX", 6, 3, -1, 1, 424.0),
    Sketcher.Constraint("DistanceY", 6, 3, -1, 1, 40.0),
    Sketcher.Constraint("DistanceX", 8, 3, -1, 1, 41.0),
    Sketcher.Constraint("Radius", 4, 42.649468),
    Sketcher.Constraint("DistanceX", 3, 1, 3, 2, 200.318389),
])
pad22 = body22.newObject("PartDesign::Pad", "Pad021")
pad22.Profile = sketch22
pad22.Length = 25
body23 = doc.addObject("PartDesign::Body", "Body022")

# Sketch on XY plane
sketch23 = body23.newObject("Sketcher::SketchObject", "Sketch022")
sketch23.AttachmentSupport = (doc.getObject("XY_Plane022"), [""])
sketch23.MapMode = "FlatFace"
sketch23.addGeometry([
    Part.LineSegment(App.Vector(0, -80, 0), App.Vector(0, 0, 0)),  # 0
    Part.LineSegment(App.Vector(0, 0, 0), App.Vector(-465, 0, 0)),  # 1
    Part.LineSegment(App.Vector(-465, 0, 0), App.Vector(-465, -80, 0)),  # 2
    Part.LineSegment(App.Vector(-465, -80, 0), App.Vector(-269, -80, 0)),  # 3
    Part.ArcOfCircle(Part.Circle(App.Vector(-232, -112, 0), App.Vector(0, 0, 1), 48), math.radians(41), math.radians(139)),  # 4
    Part.LineSegment(App.Vector(-196, -80, 0), App.Vector(0, -80, 0)),  # 5
    Part.Circle(App.Vector(-424, -40, 0), App.Vector(0, 0, 1), 14),  # 6
    Part.Circle(App.Vector(-316, -40, 0), App.Vector(0, 0, 1), 9),  # 7
    Part.Circle(App.Vector(-232, -40, 0), App.Vector(0, 0, 1), 12),  # 8
    Part.Circle(App.Vector(-148, -40, 0), App.Vector(0, 0, 1), 9),  # 9
    Part.Circle(App.Vector(-41, -40, 0), App.Vector(0, 0, 1), 14),  # 10
], False)
sketch23.addConstraint([
    Sketcher.Constraint("Coincident", 0, 2, 1, 1),
    Sketcher.Constraint("Coincident", 1, 2, 2, 1),
    Sketcher.Constraint("Coincident", 2, 2, 3, 1),
    Sketcher.Constraint("Coincident", 3, 2, 4, 2),
    Sketcher.Constraint("Coincident", 4, 1, 5, 1),
    Sketcher.Constraint("Coincident", 5, 2, 0, 1),
    Sketcher.Constraint("Vertical", 0),
    Sketcher.Constraint("Horizontal", 1),
    Sketcher.Constraint("Vertical", 2),
    Sketcher.Constraint("Horizontal", 3),
    Sketcher.Constraint("Horizontal", 5),
    Sketcher.Constraint("Coincident", 0, 2, -1, 1),
    Sketcher.Constraint("Equal", 7, 9),
    Sketcher.Constraint("Equal", 6, 10),
    Sketcher.Constraint("Horizontal", 6, 3, 7, 3),
    Sketcher.Constraint("Horizontal", 7, 3, 8, 3),
    Sketcher.Constraint("Horizontal", 8, 3, 9, 3),
    Sketcher.Constraint("Horizontal", 9, 3, 10, 3),
    Sketcher.Constraint("Horizontal", 3, 2, 4, 1),
    Sketcher.Constraint("Vertical", 4, 3, 8, 3),
    Sketcher.Constraint("Equal", 3, 5),
    Sketcher.Constraint("Diameter", 6, 28.0),
    Sketcher.Constraint("Diameter", 7, 18.0),
    Sketcher.Constraint("Diameter", 8, 24.0),
    Sketcher.Constraint("DistanceX", 1, 2, 1, 1, 465.0),
    Sketcher.Constraint("DistanceY", 0, 1, 0, 2, 80.0),
    Sketcher.Constraint("DistanceX", 6, 3, -1, 1, 424.0),
    Sketcher.Constraint("DistanceY", 6, 3, -1, 1, 40.0),
    Sketcher.Constraint("DistanceX", 10, 3, -1, 1, 41.0),
    Sketcher.Constraint("DistanceX", 7, 3, 4, 3, 84.0),
    Sketcher.Constraint("DistanceX", 8, 3, 9, 3, 84.0),
    Sketcher.Constraint("Radius", 4, 47.976801),
    Sketcher.Constraint("DistanceX", 3, 1, 3, 2, 196.418249),
])
pad23 = body23.newObject("PartDesign::Pad", "Pad022")
pad23.Profile = sketch23
pad23.Length = 25

doc.recompute()
